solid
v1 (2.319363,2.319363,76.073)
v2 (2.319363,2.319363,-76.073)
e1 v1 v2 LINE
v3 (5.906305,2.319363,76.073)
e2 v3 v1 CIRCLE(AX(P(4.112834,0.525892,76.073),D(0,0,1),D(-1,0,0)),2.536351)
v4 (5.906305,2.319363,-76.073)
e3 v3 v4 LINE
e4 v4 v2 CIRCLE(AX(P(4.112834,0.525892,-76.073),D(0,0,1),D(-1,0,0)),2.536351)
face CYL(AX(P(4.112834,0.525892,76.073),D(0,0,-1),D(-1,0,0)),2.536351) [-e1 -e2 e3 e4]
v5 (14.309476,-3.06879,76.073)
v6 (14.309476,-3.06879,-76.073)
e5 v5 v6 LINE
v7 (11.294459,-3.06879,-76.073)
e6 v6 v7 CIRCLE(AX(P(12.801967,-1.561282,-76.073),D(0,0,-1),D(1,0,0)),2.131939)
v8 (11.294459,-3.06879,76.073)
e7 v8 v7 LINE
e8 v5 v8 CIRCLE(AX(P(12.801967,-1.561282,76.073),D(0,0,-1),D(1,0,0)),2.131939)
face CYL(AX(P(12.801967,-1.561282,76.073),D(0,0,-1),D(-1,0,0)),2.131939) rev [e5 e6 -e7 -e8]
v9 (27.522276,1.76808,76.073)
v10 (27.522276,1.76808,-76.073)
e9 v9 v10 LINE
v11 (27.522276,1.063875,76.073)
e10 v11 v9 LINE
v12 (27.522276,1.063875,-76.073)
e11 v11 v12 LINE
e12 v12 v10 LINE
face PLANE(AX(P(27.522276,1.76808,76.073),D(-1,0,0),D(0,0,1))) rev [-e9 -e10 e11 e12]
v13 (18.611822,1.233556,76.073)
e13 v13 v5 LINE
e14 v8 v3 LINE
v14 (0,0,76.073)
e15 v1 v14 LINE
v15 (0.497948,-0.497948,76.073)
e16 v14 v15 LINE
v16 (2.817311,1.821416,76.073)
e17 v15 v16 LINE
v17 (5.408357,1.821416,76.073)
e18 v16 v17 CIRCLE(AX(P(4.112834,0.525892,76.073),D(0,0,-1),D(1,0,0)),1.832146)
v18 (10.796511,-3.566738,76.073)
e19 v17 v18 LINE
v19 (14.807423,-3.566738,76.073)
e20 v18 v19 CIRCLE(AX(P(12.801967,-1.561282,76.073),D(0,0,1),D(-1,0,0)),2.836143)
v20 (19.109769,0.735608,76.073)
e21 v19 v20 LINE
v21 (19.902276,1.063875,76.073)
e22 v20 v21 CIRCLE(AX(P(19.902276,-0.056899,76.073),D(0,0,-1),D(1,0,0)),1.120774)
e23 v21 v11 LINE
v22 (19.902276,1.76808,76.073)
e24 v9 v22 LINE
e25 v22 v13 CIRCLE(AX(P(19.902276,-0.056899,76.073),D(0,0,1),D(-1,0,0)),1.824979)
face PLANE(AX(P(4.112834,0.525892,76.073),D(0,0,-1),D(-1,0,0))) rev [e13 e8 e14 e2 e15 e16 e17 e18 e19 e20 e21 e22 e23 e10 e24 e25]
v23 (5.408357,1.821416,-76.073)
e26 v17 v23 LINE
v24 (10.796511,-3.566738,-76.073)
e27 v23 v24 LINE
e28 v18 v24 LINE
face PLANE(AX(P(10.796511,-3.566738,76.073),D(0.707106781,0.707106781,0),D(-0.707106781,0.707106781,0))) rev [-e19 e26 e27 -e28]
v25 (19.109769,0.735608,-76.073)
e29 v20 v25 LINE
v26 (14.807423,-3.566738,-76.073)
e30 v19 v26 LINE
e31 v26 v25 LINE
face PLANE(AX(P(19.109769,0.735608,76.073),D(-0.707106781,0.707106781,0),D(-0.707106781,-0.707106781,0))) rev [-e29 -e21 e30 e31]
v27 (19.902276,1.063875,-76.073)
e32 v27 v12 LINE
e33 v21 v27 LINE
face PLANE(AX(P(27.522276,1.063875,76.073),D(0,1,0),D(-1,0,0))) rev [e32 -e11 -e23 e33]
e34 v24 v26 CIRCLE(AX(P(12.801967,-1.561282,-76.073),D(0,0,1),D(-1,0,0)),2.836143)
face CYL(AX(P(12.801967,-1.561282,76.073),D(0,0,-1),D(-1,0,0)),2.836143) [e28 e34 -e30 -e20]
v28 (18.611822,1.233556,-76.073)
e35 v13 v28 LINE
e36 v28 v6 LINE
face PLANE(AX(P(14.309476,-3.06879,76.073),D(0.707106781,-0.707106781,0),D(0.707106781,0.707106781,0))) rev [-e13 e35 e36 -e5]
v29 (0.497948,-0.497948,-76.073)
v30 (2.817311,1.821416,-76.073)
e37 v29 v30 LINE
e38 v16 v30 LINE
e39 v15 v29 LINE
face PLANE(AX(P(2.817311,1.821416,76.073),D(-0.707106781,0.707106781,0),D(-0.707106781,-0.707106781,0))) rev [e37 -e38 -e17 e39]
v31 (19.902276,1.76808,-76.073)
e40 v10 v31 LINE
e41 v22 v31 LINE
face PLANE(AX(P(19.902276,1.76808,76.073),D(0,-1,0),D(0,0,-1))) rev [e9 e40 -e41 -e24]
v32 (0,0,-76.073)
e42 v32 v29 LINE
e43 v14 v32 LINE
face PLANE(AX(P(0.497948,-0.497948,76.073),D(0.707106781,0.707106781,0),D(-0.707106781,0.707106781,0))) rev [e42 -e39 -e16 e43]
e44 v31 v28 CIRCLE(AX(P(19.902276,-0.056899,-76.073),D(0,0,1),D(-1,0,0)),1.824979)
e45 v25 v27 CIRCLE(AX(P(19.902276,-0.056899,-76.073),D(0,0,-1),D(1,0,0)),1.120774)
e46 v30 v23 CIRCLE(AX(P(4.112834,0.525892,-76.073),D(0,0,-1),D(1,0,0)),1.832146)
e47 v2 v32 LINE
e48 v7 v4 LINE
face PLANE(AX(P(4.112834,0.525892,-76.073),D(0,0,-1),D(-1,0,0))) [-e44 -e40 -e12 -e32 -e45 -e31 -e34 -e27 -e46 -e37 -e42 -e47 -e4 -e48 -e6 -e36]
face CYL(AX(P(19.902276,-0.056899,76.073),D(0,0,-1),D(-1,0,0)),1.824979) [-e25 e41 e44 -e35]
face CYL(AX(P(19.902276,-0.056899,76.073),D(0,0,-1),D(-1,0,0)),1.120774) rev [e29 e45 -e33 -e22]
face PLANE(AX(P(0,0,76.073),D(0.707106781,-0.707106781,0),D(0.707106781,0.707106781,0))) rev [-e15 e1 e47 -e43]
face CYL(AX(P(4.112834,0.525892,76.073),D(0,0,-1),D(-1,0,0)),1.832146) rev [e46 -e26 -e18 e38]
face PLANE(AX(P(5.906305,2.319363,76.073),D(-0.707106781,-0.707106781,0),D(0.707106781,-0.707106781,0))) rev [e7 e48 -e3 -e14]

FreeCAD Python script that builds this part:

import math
import FreeCAD as App
import Part
import Sketcher
from FreeCAD import Vector
Q = App.Units.Quantity

doc = App.newDocument("Part")
body = doc.addObject("PartDesign::Body", "Body")

# Sketch on XY plane
sketch1 = doc.addObject("Sketcher::SketchObject", "Sketch")
body.addObject(sketch1)
sketch1.AttachmentSupport = (doc.XY_Plane, [""])
sketch1.MapMode = "FlatFace"
sketch1.addGeometry(Part.LineSegment(Vector(2.319363, 2.319363, 0), Vector(0, 0, 0)), False)
sketch1.addGeometry(Part.LineSegment(Vector(0, 0, 0), Vector(0.497948, -0.497948, 0)), False)
sketch1.addGeometry(Part.LineSegment(Vector(0.497948, -0.497948, 0), Vector(2.817311, 1.821416, 0)), False)
sketch1.addGeometry(Part.ArcOfCircle(Part.Circle(Vector(4.112834, 0.525892, 0), Vector(0, 0, 1), 1.832146), math.radians(45), math.radians(135)), False)
sketch1.addGeometry(Part.LineSegment(Vector(5.408357, 1.821416, 0), Vector(10.796511, -3.566738, 0)), False)
sketch1.addGeometry(Part.ArcOfCircle(Part.Circle(Vector(12.801967, -1.561282, 0), Vector(0, 0, 1), 2.836143), math.radians(-135), math.radians(-45)), False)
sketch1.addGeometry(Part.LineSegment(Vector(14.807423, -3.566738, 0), Vector(19.109769, 0.735608, 0)), False)
sketch1.addGeometry(Part.ArcOfCircle(Part.Circle(Vector(19.902276, -0.056899, 0), Vector(0, 0, 1), 1.120774), math.radians(90), math.radians(135)), False)
sketch1.addGeometry(Part.LineSegment(Vector(19.902276, 1.063875, 0), Vector(27.522276, 1.063875, 0)), False)
sketch1.addGeometry(Part.LineSegment(Vector(27.522276, 1.063875, 0), Vector(27.522276, 1.76808, 0)), False)
sketch1.addGeometry(Part.LineSegment(Vector(27.522276, 1.76808, 0), Vector(19.902276, 1.76808, 0)), False)
sketch1.addGeometry(Part.ArcOfCircle(Part.Circle(Vector(19.902276, -0.056899, 0), Vector(0, 0, 1), 1.824979), math.radians(90), math.radians(135)), False)
sketch1.addGeometry(Part.LineSegment(Vector(18.611822, 1.233556, 0), Vector(14.309476, -3.06879, 0)), False)
sketch1.addGeometry(Part.ArcOfCircle(Part.Circle(Vector(12.801967, -1.561282, 0), Vector(0, 0, 1), 2.131939), math.radians(-135), math.radians(-45)), False)
sketch1.addGeometry(Part.LineSegment(Vector(11.294459, -3.06879, 0), Vector(5.906305, 2.319363, 0)), False)
sketch1.addGeometry(Part.ArcOfCircle(Part.Circle(Vector(4.112834, 0.525892, 0), Vector(0, 0, 1), 2.536351), math.radians(45), math.radians(135)), False)
sketch1.addConstraint(Sketcher.Constraint("Coincident", 0, 2, 1, 1))
sketch1.addConstraint(Sketcher.Constraint("Coincident", 1, 2, 2, 1))
sketch1.addConstraint(Sketcher.Constraint("Tangent", 2, 2, 3, 2))
sketch1.addConstraint(Sketcher.Constraint("Tangent", 3, 1, 4, 1))
sketch1.addConstraint(Sketcher.Constraint("Tangent", 4, 2, 5, 1))
sketch1.addConstraint(Sketcher.Constraint("Tangent", 5, 2, 6, 1))
sketch1.addConstraint(Sketcher.Constraint("Tangent", 6, 2, 7, 2))
sketch1.addConstraint(Sketcher.Constraint("Tangent", 7, 1, 8, 1))
sketch1.addConstraint(Sketcher.Constraint("Coincident", 8, 2, 9, 1))
sketch1.addConstraint(Sketcher.Constraint("Coincident", 9, 2, 10, 1))
sketch1.addConstraint(Sketcher.Constraint("Tangent", 10, 2, 11, 1))
sketch1.addConstraint(Sketcher.Constraint("Tangent", 11, 2, 12, 1))
sketch1.addConstraint(Sketcher.Constraint("Tangent", 12, 2, 13, 2))
sketch1.addConstraint(Sketcher.Constraint("Tangent", 13, 1, 14, 1))
sketch1.addConstraint(Sketcher.Constraint("Tangent", 14, 2, 15, 1))
sketch1.addConstraint(Sketcher.Constraint("Tangent", 15, 2, 0, 1))
sketch1.addConstraint(Sketcher.Constraint("Horizontal", 8))
sketch1.addConstraint(Sketcher.Constraint("Vertical", 9))
sketch1.addConstraint(Sketcher.Constraint("Horizontal", 10))
sketch1.addConstraint(Sketcher.Constraint("Coincident", 0, 2, -1, 1))
sketch1.addConstraint(Sketcher.Constraint("Coincident", 11, 3, 7, 3))
sketch1.addConstraint(Sketcher.Constraint("Coincident", 13, 3, 5, 3))
sketch1.addConstraint(Sketcher.Constraint("Coincident", 15, 3, 3, 3))
sketch1.addConstraint(Sketcher.Constraint("Perpendicular", 0, 1))
sketch1.addConstraint(Sketcher.Constraint("Perpendicular", 1, 2))
sketch1.addConstraint(Sketcher.Constraint("Perpendicular", 2, 4))
sketch1.addConstraint(Sketcher.Constraint("Perpendicular", 4, 6))
sketch1.addConstraint(Sketcher.Constraint("Parallel", 6, 12))
sketch1.addConstraint(Sketcher.Constraint("Perpendicular", 12, 14))
sketch1.addConstraint(Sketcher.Constraint("Horizontal", 2, 2, 3, 1))
sketch1.addConstraint(Sketcher.Constraint("DistanceX", 8, 1, 8, 2, Q("0.3 in")))
sketch1.addConstraint(Sketcher.Constraint("Distance", 4, Q("0.3 in")))
sketch1.addConstraint(Sketcher.Constraint("Radius", 11, 1.824979))
sketch1.addConstraint(Sketcher.Constraint("Radius", 13, 2.131939))
sketch1.addConstraint(Sketcher.Constraint("Radius", 15, 2.536351))
sketch1.addConstraint(Sketcher.Constraint("Radius", 3, 1.832146))
sketch1.addConstraint(Sketcher.Constraint("DistanceY", 7, 3, -1, 1, 0.056899))
sketch1.addConstraint(Sketcher.Constraint("DistanceY", 5, 3, -1, 1, 1.561282))
pad1 = doc.addObject("PartDesign::Pad", "Pad")
body.addObject(pad1)
pad1.Profile = sketch1
pad1.Length = Q("5.99 in")
pad1.Midplane = True

doc.recompute()
